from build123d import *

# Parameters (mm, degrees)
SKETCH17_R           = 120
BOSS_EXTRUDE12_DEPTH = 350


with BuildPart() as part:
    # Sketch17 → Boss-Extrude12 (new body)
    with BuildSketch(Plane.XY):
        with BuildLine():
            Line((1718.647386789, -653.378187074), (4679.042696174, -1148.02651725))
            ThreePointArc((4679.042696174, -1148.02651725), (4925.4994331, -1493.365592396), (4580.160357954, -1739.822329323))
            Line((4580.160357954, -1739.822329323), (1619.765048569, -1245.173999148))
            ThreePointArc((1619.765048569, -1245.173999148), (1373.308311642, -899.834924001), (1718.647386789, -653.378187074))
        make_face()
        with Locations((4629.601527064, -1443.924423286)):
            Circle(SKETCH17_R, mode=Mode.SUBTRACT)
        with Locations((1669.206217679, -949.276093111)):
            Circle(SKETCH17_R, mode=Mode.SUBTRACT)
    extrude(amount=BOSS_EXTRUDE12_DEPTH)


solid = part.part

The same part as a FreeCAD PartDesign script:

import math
import FreeCAD as App
import Part
import Sketcher
from FreeCAD import Vector

doc = App.newDocument("Part")
body = doc.addObject("PartDesign::Body", "Body")

# Sketch on XY plane
sketch1 = body.newObject("Sketcher::SketchObject", "Sketch")
sketch1.AttachmentSupport = (doc.getObject("XY_Plane"), [""])
sketch1.MapMode = "FlatFace"
sketch1.addGeometry([
    Part.LineSegment(Vector(4679.042696, -1148.026517, 0), Vector(1718.647387, -653.378187, 0)),  # 0
    Part.ArcOfCircle(Part.Circle(Vector(1669.206218, -949.276093, 0), Vector(0, 0, 1), 300), math.radians(80.514157), math.radians(260.514157)),  # 1
    Part.LineSegment(Vector(1619.765049, -1245.173999, 0), Vector(4580.160358, -1739.822329, 0)),  # 2
    Part.ArcOfCircle(Part.Circle(Vector(4629.601527, -1443.924423, 0), Vector(0, 0, 1), 300), math.radians(-99.485843), math.radians(80.514157)),  # 3
    Part.Circle(Vector(4629.601527, -1443.924423, 0), Vector(0, 0, 1), 120),  # 4
    Part.Circle(Vector(1669.206218, -949.276093, 0), Vector(0, 0, 1), 120),  # 5
], False)
sketch1.addConstraint([
    Sketcher.Constraint("Tangent", 0, 2, 1, 1),
    Sketcher.Constraint("Tangent", 1, 2, 2, 1),
    Sketcher.Constraint("Tangent", 2, 2, 3, 1),
    Sketcher.Constraint("Tangent", 3, 2, 0, 1),
    Sketcher.Constraint("Coincident", 4, 3, 3, 3),
    Sketcher.Constraint("Coincident", 5, 3, 1, 3),
    Sketcher.Constraint("Equal", 1, 3),
    Sketcher.Constraint("Equal", 4, 5),
    Sketcher.Constraint("Diameter", 4, 240.0),
    Sketcher.Constraint("Radius", 1, 300.0),
    Sketcher.Constraint("DistanceY", 1, 2, -1, 1, 1245.173999),
    Sketcher.Constraint("DistanceY", 2, 2, -1, 1, 1739.822329),
    Sketcher.Constraint("DistanceX", 1, 3, 3, 3, 2960.395309),
    Sketcher.Constraint("DistanceX", -1, 1, 1, 3, 1669.206218),
])
pad1 = body.newObject("PartDesign::Pad", "Pad")
pad1.Profile = sketch1
pad1.Length = 350

doc.recompute()
